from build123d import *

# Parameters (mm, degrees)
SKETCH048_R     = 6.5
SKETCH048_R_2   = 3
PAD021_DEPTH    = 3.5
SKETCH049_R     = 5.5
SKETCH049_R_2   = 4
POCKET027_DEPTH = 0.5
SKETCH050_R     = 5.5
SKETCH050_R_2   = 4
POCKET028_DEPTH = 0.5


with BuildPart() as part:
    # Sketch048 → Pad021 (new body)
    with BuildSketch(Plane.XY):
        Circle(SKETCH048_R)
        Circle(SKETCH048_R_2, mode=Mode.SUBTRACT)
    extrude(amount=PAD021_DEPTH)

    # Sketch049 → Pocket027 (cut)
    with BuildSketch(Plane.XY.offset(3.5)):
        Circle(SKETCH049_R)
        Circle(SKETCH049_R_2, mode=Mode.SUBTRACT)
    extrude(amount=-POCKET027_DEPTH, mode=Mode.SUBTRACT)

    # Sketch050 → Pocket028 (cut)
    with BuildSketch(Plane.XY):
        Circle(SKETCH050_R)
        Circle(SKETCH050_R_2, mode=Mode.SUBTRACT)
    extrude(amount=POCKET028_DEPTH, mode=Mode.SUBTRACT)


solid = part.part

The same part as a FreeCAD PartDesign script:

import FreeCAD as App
import Part
import Sketcher
Q = App.Units.Quantity

doc = App.newDocument("Part")
body = doc.addObject("PartDesign::Body", "Body")

# Sketch on XY plane
sketch1 = body.newObject("Sketcher::SketchObject", "Sketch")
sketch1.AttachmentSupport = (doc.getObject("XY_Plane"), [""])
sketch1.MapMode = "FlatFace"
sketch1.addGeometry([
    Part.Circle(App.Vector(0, 0, 0), App.Vector(0, 0, 1), 6.5),
    Part.Circle(App.Vector(0, 0, 0), App.Vector(0, 0, 1), 3),
], False)
sketch1.addConstraint([
    Sketcher.Constraint("Coincident", 0, 3, -1, 1),
    Sketcher.Constraint("Coincident", 1, 3, -1, 1),
    Sketcher.Constraint("Diameter", 0, Q("13 mm")),
    Sketcher.Constraint("Diameter", 1, Q("6 mm")),
])
pad1 = body.newObject("PartDesign::Pad", "Pad")
pad1.Profile = sketch1
pad1.Length = 3.5

# Sketch on XY plane
sketch2 = body.newObject("Sketcher::SketchObject", "Sketch001")
sketch2.AttachmentSupport = (doc.getObject("XY_Plane"), [""])
sketch2.MapMode = "FlatFace"
sketch2.AttachmentOffset = App.Placement(App.Vector(0, 0, 3.5), App.Rotation())
sketch2.addGeometry([
    Part.Circle(App.Vector(0, 0, 0), App.Vector(0, 0, 1), 5.5),
    Part.Circle(App.Vector(0, 0, 0), App.Vector(0, 0, 1), 4),
], False)
sketch2.addConstraint([
    Sketcher.Constraint("Coincident", 0, 3, -1, 1),
    Sketcher.Constraint("Coincident", 1, 3, -1, 1),
    Sketcher.Constraint("Diameter", 0, Q("11 mm")),
    Sketcher.Constraint("Diameter", 1, Q("8 mm")),
])
pocket1 = body.newObject("PartDesign::Pocket", "Pocket")
pocket1.Profile = sketch2
pocket1.Length = 0.5

# Sketch on XY plane
sketch3 = body.newObject("Sketcher::SketchObject", "Sketch002")
sketch3.AttachmentSupport = (doc.getObject("XY_Plane"), [""])
sketch3.MapMode = "FlatFace"
sketch3.addGeometry([
    Part.Circle(App.Vector(0, 0, 0), App.Vector(0, 0, 1), 5.5),
    Part.Circle(App.Vector(0, 0, 0), App.Vector(0, 0, 1), 4),
], False)
sketch3.addConstraint([
    Sketcher.Constraint("Coincident", 0, 3, -1, 1),
    Sketcher.Constraint("Coincident", 1, 3, -1, 1),
    Sketcher.Constraint("Diameter", 0, Q("11 mm")),
    Sketcher.Constraint("Diameter", 1, Q("8 mm")),
])
pocket2 = body.newObject("PartDesign::Pocket", "Pocket001")
pocket2.Profile = sketch3
pocket2.Length = 0.5
pocket2.Reversed = True

doc.recompute()
